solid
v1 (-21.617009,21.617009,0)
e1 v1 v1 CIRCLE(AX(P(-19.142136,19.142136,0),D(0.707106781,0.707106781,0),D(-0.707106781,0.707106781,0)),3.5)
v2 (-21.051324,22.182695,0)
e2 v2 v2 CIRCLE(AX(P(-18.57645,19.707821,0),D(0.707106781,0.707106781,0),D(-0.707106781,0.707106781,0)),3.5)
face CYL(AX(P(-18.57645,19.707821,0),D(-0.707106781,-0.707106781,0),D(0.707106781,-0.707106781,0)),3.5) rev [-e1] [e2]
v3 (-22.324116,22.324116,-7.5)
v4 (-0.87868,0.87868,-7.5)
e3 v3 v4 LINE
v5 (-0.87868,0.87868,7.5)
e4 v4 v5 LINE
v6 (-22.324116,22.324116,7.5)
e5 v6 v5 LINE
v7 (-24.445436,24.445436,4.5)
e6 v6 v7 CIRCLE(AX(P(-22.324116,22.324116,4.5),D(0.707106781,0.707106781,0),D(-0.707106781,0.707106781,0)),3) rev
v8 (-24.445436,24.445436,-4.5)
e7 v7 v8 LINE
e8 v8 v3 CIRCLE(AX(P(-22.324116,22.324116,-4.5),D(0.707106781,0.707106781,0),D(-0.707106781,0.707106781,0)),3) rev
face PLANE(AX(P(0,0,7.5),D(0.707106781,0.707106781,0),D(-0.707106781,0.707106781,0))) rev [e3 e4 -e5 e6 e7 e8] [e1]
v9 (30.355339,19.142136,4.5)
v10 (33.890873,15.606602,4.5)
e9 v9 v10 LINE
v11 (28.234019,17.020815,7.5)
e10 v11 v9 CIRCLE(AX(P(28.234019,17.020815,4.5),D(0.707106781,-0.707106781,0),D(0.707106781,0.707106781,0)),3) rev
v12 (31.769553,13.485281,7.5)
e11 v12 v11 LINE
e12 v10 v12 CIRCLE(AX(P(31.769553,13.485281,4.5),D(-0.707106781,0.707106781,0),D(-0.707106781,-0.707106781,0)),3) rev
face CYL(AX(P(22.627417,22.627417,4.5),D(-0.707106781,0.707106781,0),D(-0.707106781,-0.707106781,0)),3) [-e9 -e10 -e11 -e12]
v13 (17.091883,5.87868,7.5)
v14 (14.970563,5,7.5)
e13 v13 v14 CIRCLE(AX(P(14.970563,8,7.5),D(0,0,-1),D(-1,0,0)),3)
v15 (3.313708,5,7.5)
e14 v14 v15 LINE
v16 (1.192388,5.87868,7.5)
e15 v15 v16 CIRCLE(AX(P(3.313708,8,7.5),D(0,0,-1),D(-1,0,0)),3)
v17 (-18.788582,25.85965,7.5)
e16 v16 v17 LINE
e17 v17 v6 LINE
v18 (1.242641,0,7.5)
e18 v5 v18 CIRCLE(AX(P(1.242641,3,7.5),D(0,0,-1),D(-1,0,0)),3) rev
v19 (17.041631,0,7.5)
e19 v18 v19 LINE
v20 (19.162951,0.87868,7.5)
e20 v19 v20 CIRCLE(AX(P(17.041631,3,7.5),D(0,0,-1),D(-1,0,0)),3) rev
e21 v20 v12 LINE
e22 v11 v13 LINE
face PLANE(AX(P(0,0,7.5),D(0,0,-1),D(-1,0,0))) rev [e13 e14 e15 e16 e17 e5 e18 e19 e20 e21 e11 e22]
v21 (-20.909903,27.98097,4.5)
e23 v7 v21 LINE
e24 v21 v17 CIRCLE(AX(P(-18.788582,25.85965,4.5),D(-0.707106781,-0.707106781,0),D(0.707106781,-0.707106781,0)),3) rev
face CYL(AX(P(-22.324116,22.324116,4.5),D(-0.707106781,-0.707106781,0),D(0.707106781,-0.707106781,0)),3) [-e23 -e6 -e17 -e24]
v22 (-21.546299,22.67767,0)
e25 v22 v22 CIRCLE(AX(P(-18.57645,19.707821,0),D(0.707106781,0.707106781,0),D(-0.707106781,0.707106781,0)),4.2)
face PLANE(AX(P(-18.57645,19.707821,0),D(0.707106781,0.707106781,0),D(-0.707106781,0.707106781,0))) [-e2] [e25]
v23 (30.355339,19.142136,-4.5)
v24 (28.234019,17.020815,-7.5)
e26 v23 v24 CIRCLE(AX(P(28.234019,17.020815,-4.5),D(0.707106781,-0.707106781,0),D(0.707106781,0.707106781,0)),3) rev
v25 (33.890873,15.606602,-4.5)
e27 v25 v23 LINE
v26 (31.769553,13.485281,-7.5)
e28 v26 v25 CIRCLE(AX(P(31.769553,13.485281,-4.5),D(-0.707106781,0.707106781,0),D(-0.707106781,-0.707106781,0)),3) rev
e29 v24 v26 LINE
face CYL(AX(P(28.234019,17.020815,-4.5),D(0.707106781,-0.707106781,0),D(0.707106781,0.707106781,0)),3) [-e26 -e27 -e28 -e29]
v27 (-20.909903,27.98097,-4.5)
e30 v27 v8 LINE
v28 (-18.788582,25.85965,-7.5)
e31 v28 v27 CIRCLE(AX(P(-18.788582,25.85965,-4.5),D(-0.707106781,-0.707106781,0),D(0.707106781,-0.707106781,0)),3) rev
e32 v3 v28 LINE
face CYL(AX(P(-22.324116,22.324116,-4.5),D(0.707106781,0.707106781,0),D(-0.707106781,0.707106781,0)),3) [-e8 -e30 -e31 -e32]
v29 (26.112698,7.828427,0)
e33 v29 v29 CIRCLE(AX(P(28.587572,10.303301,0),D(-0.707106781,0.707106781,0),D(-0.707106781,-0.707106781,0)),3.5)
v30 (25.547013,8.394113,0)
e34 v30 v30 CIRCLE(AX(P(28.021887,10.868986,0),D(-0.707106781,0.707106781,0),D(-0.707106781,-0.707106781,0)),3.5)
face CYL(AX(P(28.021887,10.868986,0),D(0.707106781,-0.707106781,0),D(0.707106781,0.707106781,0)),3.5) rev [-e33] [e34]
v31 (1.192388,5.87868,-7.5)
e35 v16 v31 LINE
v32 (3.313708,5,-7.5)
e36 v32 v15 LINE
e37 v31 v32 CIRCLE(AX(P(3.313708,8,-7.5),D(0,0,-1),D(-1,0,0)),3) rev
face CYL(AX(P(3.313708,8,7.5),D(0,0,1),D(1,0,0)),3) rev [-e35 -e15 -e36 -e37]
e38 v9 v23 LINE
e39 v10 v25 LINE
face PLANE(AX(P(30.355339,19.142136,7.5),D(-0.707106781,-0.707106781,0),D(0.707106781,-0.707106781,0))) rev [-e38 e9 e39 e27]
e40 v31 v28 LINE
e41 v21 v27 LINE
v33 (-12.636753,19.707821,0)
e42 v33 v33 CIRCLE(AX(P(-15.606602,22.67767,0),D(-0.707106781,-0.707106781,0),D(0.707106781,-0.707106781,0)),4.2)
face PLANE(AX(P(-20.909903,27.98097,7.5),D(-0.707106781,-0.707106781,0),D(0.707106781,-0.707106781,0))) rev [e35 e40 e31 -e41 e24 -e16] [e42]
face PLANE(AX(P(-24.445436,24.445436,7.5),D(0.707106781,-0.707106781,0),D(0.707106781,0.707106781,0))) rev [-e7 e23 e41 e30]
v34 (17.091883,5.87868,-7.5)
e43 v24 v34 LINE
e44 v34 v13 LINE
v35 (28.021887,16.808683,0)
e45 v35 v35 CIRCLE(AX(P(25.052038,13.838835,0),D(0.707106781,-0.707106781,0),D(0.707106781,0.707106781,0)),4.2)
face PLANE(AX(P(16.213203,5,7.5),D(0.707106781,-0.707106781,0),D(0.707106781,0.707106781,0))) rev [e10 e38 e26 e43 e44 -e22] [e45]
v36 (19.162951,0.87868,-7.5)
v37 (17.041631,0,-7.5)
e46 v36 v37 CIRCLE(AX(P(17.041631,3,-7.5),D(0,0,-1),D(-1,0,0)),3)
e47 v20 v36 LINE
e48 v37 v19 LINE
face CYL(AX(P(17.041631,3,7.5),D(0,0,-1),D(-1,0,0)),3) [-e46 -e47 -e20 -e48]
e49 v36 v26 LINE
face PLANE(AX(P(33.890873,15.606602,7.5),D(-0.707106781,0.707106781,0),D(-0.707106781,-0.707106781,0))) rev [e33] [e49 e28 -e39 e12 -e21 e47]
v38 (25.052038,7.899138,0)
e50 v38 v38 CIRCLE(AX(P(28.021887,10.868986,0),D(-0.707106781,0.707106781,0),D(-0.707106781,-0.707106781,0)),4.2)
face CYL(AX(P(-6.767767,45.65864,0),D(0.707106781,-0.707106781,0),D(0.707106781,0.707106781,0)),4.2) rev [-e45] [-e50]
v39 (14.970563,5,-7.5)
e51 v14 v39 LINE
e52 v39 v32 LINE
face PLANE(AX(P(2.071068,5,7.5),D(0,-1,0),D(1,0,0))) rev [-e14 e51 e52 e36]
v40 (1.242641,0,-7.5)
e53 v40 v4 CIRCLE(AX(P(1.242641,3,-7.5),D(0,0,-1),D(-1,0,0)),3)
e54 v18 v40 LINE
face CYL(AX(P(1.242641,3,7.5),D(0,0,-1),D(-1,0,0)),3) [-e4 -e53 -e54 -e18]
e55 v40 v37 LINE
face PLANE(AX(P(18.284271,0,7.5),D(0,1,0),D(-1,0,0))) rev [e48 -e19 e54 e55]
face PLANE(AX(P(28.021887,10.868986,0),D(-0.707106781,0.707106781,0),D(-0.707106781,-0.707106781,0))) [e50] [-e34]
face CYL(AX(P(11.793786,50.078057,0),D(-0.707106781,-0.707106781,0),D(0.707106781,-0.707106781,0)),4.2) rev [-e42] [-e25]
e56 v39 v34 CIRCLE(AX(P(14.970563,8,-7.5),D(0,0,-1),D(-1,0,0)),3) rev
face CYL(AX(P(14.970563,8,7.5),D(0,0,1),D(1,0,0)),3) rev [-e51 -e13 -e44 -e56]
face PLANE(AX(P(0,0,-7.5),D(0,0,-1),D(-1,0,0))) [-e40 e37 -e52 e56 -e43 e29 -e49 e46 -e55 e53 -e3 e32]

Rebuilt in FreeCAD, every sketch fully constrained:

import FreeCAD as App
import Part
import Sketcher
from FreeCAD import Vector
Q = App.Units.Quantity


def edges_at(feature, points):
    """Names of the edges that pass closest to the given points."""
    edges = feature.Shape.Edges
    near = lambda p: min(range(len(edges)), key=lambda i: edges[i].distToShape(Part.Vertex(*p))[0])
    return sorted({f"Edge{near(p) + 1}" for p in points})


def add_polygon(sketch, points):
    """Adds a closed chain of lines whose ends are joined by coincident constraints."""
    first, n = sketch.GeometryCount, len(points)
    for a, b in zip(points, points[1:] + points[:1]):
        sketch.addGeometry(Part.LineSegment(App.Vector(*a, 0), App.Vector(*b, 0)), False)
    for i in range(n):
        sketch.addConstraint(Sketcher.Constraint("Coincident", first + i, 2, first + (i + 1) % n, 1))

doc = App.newDocument("Part")
body = doc.addObject("PartDesign::Body", "Body")

sketch1 = body.newObject("Sketcher::SketchObject", "Sketch")
sketch1.AttachmentSupport = (doc.getObject("XY_Plane"), [""])
sketch1.MapMode = "FlatFace"
add_polygon(sketch1, [(-24, 24), (0, 0), (18, 0), (34, 16), (30, 19), (16, 5), (2, 5), (-21, 28)])
sketch1.addConstraint([
    Sketcher.Constraint("Horizontal", 1),
    Sketcher.Constraint("Horizontal", 5),
    Sketcher.Constraint("Coincident", 0, 2, -1, 1),
    Sketcher.Constraint("Perpendicular", 0, 2),
    Sketcher.Constraint("Perpendicular", 2, 3),
    Sketcher.Constraint("Perpendicular", 3, 4),
    Sketcher.Constraint("Perpendicular", 4, 6),
    Sketcher.Constraint("Perpendicular", 6, 7),
    Sketcher.Constraint("Equal", 3, 7),
    Sketcher.Constraint("Angle", 0, Q("-45 deg")),
    Sketcher.Constraint("Distance", 3, Q("5 mm")),
    Sketcher.Constraint("Distance", 4, Q("20 mm")),
    Sketcher.Constraint("DistanceY", -1, 1, 4, 2, Q("5 mm")),
    Sketcher.Constraint("Distance", 6, Q("32.5 mm")),
    Sketcher.Constraint("DistanceX", 1, 1, 1, 2, Q("18.284271 mm")),
])
pad1 = body.newObject("PartDesign::Pad", "Pad")
pad1.Profile = sketch1
pad1.Length = 15
pad1.Midplane = True

sketch2 = body.newObject("Sketcher::SketchObject", "Sketch001")
sketch2.Placement = App.Placement(Vector(0, 0, 0), App.Rotation(Vector(0, 0, 1), Vector(-0.707106781, 0.707106781, 0), Vector(-0.707106781, -0.707106781, 0), "ZXY"))
sketch2.addGeometry(Part.Circle(Vector(0, 27.1, 0), Vector(0, 0, 1), 4.2), False)
sketch2.addConstraint([
    Sketcher.Constraint("PointOnObject", 0, 3, -2),
    Sketcher.Constraint("Diameter", 0, Q("8.4 mm")),
    Sketcher.Constraint("DistanceY", -1, 1, 0, 3, Q("27.071068 mm")),
])
pocket1 = body.newObject("PartDesign::Pocket", "Pocket")
pocket1.Profile = sketch2
pocket1.Type = "ThroughAll"
pocket1.Midplane = True

sketch3 = body.newObject("Sketcher::SketchObject", "Sketch002")
sketch3.Placement = App.Placement(Vector(9.142136, -9.142136, 0), App.Rotation(Vector(0, 0, -1), Vector(0.707106781, 0.707106781, 0), Vector(0.707106781, -0.707106781, 0), "ZXY"))
sketch3.addGeometry(Part.Circle(Vector(0, 27.5, 0), Vector(0, 0, 1), 4.2), False)
sketch3.addConstraint([
    Sketcher.Constraint("PointOnObject", 0, 3, -2),
    Sketcher.Constraint("Diameter", 0, Q("8.4 mm")),
    Sketcher.Constraint("DistanceY", -1, 1, 0, 3, Q("27.5 mm")),
])
pocket2 = body.newObject("PartDesign::Pocket", "Pocket001")
pocket2.Profile = sketch3
pocket2.Type = "ThroughAll"
pocket2.Midplane = True
doc.recompute()

fillet = body.newObject("PartDesign::Fillet", "Fillet")
fillet.Base = (pocket2, edges_at(pocket2, [
    (32.123, 17.374, -7.5),
    (32.123, 17.374, 7.5),
    (0, 0, 0),
    (2.071, 5, 0),
    (16.213, 5, 0),
    (18.284, 0, 0),
    (-22.678, 26.213, 7.5),
    (-22.678, 26.213, -7.5),
]))
fillet.Radius = 3

sketch4 = body.newObject("Sketcher::SketchObject", "Sketch003")
sketch4.Placement = App.Placement(Vector(0, 0, 0), App.Rotation(Vector(0, 0, -1), Vector(-0.707106781, 0.707106781, 0), Vector(0.707106781, 0.707106781, 0), "ZXY"))
sketch4.addGeometry([
    Part.Circle(Vector(0, 27.1, 0), Vector(0, 0, 1), 4.2),
    Part.Circle(Vector(0, 27.1, 0), Vector(0, 0, 1), 3.5),
], False)
sketch4.addConstraint([
    Sketcher.Constraint("Coincident", 1, 3, 0, 3),
    Sketcher.Constraint("PointOnObject", 0, 3, -2),
    Sketcher.Constraint("Diameter", 1, Q("7 mm")),
    Sketcher.Constraint("Diameter", 0, Q("8.4 mm")),
    Sketcher.Constraint("DistanceY", -1, 1, 0, 3, Q("27.071068 mm")),
])
pad2 = body.newObject("PartDesign::Pad", "Pad001")
pad2.Profile = sketch4
pad2.Length = 0.8

sketch5 = body.newObject("Sketcher::SketchObject", "Sketch004")
sketch5.Placement = App.Placement(Vector(9.142136, -9.142136, 0), App.Rotation(Vector(0, 0, 1), Vector(0.707106781, 0.707106781, 0), Vector(-0.707106781, 0.707106781, 0), "ZXY"))
sketch5.addGeometry([
    Part.Circle(Vector(0, 27.5, 0), Vector(0, 0, 1), 4.2),
    Part.Circle(Vector(0, 27.5, 0), Vector(0, 0, 1), 3.5),
], False)
sketch5.addConstraint([
    Sketcher.Constraint("Coincident", 1, 3, 0, 3),
    Sketcher.Constraint("PointOnObject", 0, 3, -2),
    Sketcher.Constraint("Diameter", 1, Q("7 mm")),
    Sketcher.Constraint("Diameter", 0, Q("8.4 mm")),
    Sketcher.Constraint("DistanceY", -1, 1, 0, 3, Q("27.5 mm")),
])
pad3 = body.newObject("PartDesign::Pad", "Pad002")
pad3.Profile = sketch5
pad3.Length = 0.8

doc.recompute()
